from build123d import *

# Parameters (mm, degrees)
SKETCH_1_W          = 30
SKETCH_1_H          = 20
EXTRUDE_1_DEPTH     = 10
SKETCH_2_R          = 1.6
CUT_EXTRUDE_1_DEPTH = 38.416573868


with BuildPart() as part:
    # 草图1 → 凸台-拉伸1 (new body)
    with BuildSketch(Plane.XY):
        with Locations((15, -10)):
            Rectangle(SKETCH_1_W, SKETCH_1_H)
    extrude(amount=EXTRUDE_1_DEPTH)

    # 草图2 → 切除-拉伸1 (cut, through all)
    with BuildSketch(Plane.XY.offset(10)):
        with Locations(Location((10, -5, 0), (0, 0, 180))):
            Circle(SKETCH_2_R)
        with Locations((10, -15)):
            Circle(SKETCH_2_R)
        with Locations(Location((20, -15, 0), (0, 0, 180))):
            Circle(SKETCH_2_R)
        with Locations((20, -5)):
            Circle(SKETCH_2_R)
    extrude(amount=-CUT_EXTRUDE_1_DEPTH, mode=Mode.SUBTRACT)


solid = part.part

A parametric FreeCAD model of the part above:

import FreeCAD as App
import Part
import Sketcher
from FreeCAD import Vector
Q = App.Units.Quantity


def add_polygon(sketch, points):
    """Adds a closed chain of lines whose ends are joined by coincident constraints."""
    first, n = sketch.GeometryCount, len(points)
    for a, b in zip(points, points[1:] + points[:1]):
        sketch.addGeometry(Part.LineSegment(App.Vector(*a, 0), App.Vector(*b, 0)), False)
    for i in range(n):
        sketch.addConstraint(Sketcher.Constraint("Coincident", first + i, 2, first + (i + 1) % n, 1))

doc = App.newDocument("Part")
body = doc.addObject("PartDesign::Body", "Body")

# Sketch on XY plane
sketch1 = body.newObject("Sketcher::SketchObject", "Sketch")
sketch1.AttachmentSupport = (doc.getObject("XY_Plane"), [""])
sketch1.MapMode = "FlatFace"
add_polygon(sketch1, [(0, 0), (0, -20), (30, -20), (30, 0)])  # lines 0-3
sketch1.addConstraint([
    Sketcher.Constraint("Vertical", 0),
    Sketcher.Constraint("Horizontal", 1),
    Sketcher.Constraint("Vertical", 2),
    Sketcher.Constraint("Horizontal", 3),
    Sketcher.Constraint("Coincident", 3, 2, -1, 1),
    Sketcher.Constraint("DistanceX", 1, 1, 1, 2, Q("30 mm")),
    Sketcher.Constraint("DistanceY", 0, 2, 0, 1, Q("20 mm")),
])
pad1 = body.newObject("PartDesign::Pad", "Pad")
pad1.Profile = sketch1
pad1.Length = 10

# Sketch on XY plane
sketch2 = body.newObject("Sketcher::SketchObject", "Sketch001")
sketch2.AttachmentSupport = (doc.getObject("XY_Plane"), [""])
sketch2.MapMode = "FlatFace"
sketch2.AttachmentOffset = App.Placement(Vector(0, 0, 10), App.Rotation())
sketch2.addGeometry([
    Part.Circle(Vector(10, -5, 0), Vector(0, 0, 1), 1.6),
    Part.Circle(Vector(10, -15, 0), Vector(0, 0, 1), 1.6),
    Part.Circle(Vector(20, -15, 0), Vector(0, 0, 1), 1.6),
    Part.Circle(Vector(20, -5, 0), Vector(0, 0, 1), 1.6),
], False)
sketch2.addConstraint([
    Sketcher.Constraint("Equal", 0, 1),
    Sketcher.Constraint("Equal", 1, 2),
    Sketcher.Constraint("Equal", 2, 3),
    Sketcher.Constraint("Horizontal", 1, 3, 2, 3),
    Sketcher.Constraint("Horizontal", 0, 3, 3, 3),
    Sketcher.Constraint("Vertical", 0, 3, 1, 3),
    Sketcher.Constraint("Vertical", 2, 3, 3, 3),
    Sketcher.Constraint("Diameter", 0, Q("3.2 mm")),
    Sketcher.Constraint("DistanceX", -1, 1, 0, 3, Q("10 mm")),
    Sketcher.Constraint("DistanceY", 0, 3, -1, 1, Q("5 mm")),
    Sketcher.Constraint("DistanceY", 1, 3, -1, 1, Q("15 mm")),
    Sketcher.Constraint("DistanceX", -1, 1, 2, 3, Q("20 mm")),
])
pocket1 = body.newObject("PartDesign::Pocket", "Pocket")
pocket1.Profile = sketch2
pocket1.Type = "ThroughAll"

doc.recompute()
